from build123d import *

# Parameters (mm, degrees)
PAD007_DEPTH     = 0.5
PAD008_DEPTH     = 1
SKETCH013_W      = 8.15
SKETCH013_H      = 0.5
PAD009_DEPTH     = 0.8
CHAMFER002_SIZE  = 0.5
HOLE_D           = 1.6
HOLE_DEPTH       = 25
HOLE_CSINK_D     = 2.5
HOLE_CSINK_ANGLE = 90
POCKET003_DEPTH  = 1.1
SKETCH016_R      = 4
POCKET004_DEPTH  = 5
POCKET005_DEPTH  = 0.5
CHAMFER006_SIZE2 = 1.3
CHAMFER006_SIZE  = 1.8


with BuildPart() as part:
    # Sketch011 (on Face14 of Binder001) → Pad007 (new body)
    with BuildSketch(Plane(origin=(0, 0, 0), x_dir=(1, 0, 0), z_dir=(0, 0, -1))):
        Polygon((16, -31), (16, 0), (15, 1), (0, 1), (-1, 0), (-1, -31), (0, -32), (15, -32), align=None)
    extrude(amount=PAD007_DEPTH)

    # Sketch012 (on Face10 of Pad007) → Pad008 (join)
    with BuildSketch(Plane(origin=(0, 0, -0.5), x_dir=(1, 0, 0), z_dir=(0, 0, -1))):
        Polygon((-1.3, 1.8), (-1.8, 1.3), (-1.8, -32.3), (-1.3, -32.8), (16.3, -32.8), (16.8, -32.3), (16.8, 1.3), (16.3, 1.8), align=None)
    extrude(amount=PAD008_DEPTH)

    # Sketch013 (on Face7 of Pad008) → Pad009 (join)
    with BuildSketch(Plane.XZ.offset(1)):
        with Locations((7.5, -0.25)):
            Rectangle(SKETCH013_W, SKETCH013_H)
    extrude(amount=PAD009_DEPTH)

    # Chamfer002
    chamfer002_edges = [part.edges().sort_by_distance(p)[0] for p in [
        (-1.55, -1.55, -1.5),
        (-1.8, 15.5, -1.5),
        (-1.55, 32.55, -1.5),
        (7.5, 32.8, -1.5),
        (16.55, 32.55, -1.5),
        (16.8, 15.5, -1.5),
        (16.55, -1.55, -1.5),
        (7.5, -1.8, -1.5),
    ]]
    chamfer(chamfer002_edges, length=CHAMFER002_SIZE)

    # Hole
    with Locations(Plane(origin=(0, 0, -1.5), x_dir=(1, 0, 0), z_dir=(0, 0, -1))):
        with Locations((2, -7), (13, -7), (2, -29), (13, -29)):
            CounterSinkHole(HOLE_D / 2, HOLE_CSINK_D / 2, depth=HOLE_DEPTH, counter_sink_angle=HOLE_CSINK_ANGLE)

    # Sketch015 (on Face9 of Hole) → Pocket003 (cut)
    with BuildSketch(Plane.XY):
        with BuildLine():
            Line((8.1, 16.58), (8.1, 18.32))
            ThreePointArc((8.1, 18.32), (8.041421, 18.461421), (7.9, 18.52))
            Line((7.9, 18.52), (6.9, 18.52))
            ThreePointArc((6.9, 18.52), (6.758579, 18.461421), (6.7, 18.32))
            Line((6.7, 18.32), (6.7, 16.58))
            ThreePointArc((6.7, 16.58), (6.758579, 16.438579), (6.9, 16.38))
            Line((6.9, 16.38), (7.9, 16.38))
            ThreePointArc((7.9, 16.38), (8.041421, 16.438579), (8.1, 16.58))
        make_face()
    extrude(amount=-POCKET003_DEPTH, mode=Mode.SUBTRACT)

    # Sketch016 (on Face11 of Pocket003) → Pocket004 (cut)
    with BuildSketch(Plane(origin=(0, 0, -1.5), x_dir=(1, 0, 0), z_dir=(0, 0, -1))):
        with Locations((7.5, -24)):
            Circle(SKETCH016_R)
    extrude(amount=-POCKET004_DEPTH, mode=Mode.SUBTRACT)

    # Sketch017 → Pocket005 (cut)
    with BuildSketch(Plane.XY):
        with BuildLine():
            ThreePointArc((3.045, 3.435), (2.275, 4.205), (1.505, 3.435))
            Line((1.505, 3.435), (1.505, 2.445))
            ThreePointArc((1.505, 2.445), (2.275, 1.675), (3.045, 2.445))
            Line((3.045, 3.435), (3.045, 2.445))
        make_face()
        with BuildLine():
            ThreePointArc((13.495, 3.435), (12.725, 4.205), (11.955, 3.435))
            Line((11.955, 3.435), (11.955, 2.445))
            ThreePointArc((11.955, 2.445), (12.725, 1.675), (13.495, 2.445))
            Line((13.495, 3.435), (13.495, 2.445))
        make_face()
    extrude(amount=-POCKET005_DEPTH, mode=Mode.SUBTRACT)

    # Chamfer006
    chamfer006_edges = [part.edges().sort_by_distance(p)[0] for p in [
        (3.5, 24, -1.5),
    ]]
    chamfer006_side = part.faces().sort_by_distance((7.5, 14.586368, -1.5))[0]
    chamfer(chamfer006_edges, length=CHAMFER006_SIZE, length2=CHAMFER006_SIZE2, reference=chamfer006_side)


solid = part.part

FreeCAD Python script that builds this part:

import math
import FreeCAD as App
import Part
import Sketcher

V = App.Vector


def edges_at(feature, points):
    """Names of the edges that pass closest to the given points."""
    edges = feature.Shape.Edges
    near = lambda p: min(range(len(edges)), key=lambda i: edges[i].distToShape(Part.Vertex(*p))[0])
    return sorted({f"Edge{near(p) + 1}" for p in points})


def add_polygon(sketch, points):
    """Adds a closed chain of lines whose ends are joined by coincident constraints."""
    first, n = sketch.GeometryCount, len(points)
    for a, b in zip(points, points[1:] + points[:1]):
        sketch.addGeometry(Part.LineSegment(App.Vector(*a, 0), App.Vector(*b, 0)), False)
    for i in range(n):
        sketch.addConstraint(Sketcher.Constraint("Coincident", first + i, 2, first + (i + 1) % n, 1))

doc = App.newDocument("Part")
body = doc.addObject("PartDesign::Body", "Body")

# Sketch on XY plane
sketch1 = doc.addObject("Sketcher::SketchObject", "Sketch")
body.addObject(sketch1)
sketch1.AttachmentSupport = (doc.XY_Plane, [""])
sketch1.MapMode = "FlatFace"
add_polygon(sketch1, [(16, 31), (16, 0), (15, -1), (0, -1), (-1, 0), (-1, 31), (0, 32), (15, 32)])  # lines 0-7
sketch1.addConstraint([
    Sketcher.Constraint("Vertical", 0),
    Sketcher.Constraint("Horizontal", 2),
    Sketcher.Constraint("Vertical", 4),
    Sketcher.Constraint("Horizontal", 6),
    Sketcher.Constraint("PointOnObject", 0, 2, -1),
    Sketcher.Constraint("PointOnObject", 2, 2, -2),
    Sketcher.Constraint("PointOnObject", 3, 2, -1),
    Sketcher.Constraint("PointOnObject", 5, 2, -2),
    Sketcher.Constraint("Perpendicular", 1, 3),
    Sketcher.Constraint("Perpendicular", 3, 5),
    Sketcher.Constraint("Perpendicular", 5, 7),
    Sketcher.Constraint("Horizontal", 4, 2, 7, 2),
    Sketcher.Constraint("Vertical", 1, 2, 6, 2),
    Sketcher.Constraint("DistanceX", 2, 2, 2, 1, 15.0),
    Sketcher.Constraint("DistanceY", 0, 2, 0, 1, 31.0),
    Sketcher.Constraint("DistanceX", -1, 1, 0, 2, 16.0),
])
pad1 = doc.addObject("PartDesign::Pad", "Pad")
body.addObject(pad1)
pad1.Profile = sketch1
pad1.Length = 0.5
pad1.Reversed = True

# Sketch on XY plane
sketch2 = doc.addObject("Sketcher::SketchObject", "Sketch001")
body.addObject(sketch2)
sketch2.AttachmentSupport = (doc.XY_Plane, [""])
sketch2.MapMode = "FlatFace"
sketch2.AttachmentOffset = App.Placement(V(0, 0, -0.5), App.Rotation())
add_polygon(sketch2, [(-1.3, -1.8), (-1.8, -1.3), (-1.8, 32.3), (-1.3, 32.8), (16.3, 32.8), (16.8, 32.3), (16.8, -1.3), (16.3, -1.8)])  # lines 0-7
sketch2.addConstraint([
    Sketcher.Constraint("Vertical", 1),
    Sketcher.Constraint("Horizontal", 3),
    Sketcher.Constraint("Vertical", 5),
    Sketcher.Constraint("Horizontal", 7),
    Sketcher.Constraint("Perpendicular", 0, 2),
    Sketcher.Constraint("Perpendicular", 2, 4),
    Sketcher.Constraint("Perpendicular", 4, 6),
    Sketcher.Constraint("Horizontal", 1, 2, 4, 2),
    Sketcher.Constraint("Horizontal", 0, 2, 5, 2),
    Sketcher.Constraint("Vertical", 3, 2, 6, 2),
    Sketcher.Constraint("Vertical", 2, 2, 7, 2),
    Sketcher.Constraint("DistanceX", 3, 1, 3, 2, 17.6),
    Sketcher.Constraint("DistanceY", 1, 1, 1, 2, 33.6),
    Sketcher.Constraint("DistanceX", 0, 2, -1, 1, 1.8),
    Sketcher.Constraint("DistanceY", 0, 2, -1, 1, 1.3),
    Sketcher.Constraint("DistanceX", 2, 2, -1, 1, 1.3),
])
pad2 = doc.addObject("PartDesign::Pad", "Pad001")
body.addObject(pad2)
pad2.Profile = sketch2
pad2.Length = 1
pad2.Reversed = True

# Sketch on XZ plane
sketch3 = doc.addObject("Sketcher::SketchObject", "Sketch002")
body.addObject(sketch3)
sketch3.AttachmentSupport = (doc.XZ_Plane, [""])
sketch3.MapMode = "FlatFace"
sketch3.AttachmentOffset = App.Placement(V(0, 0, 1), App.Rotation())
add_polygon(sketch3, [(3.425, 0), (3.425, -0.5), (11.575, -0.5), (11.575, 0)])  # lines 0-3
sketch3.addConstraint([
    Sketcher.Constraint("Vertical", 0),
    Sketcher.Constraint("Horizontal", 1),
    Sketcher.Constraint("Vertical", 2),
    Sketcher.Constraint("Horizontal", 3),
    Sketcher.Constraint("PointOnObject", 2, 2, -1),
    Sketcher.Constraint("DistanceY", 0, 2, 0, 1, 0.5),
    Sketcher.Constraint("DistanceX", 1, 1, 1, 2, 8.15),
    Sketcher.Constraint("DistanceX", -1, 1, 0, 2, 3.425),
])
pad3 = doc.addObject("PartDesign::Pad", "Pad002")
body.addObject(pad3)
pad3.Profile = sketch3
pad3.Length = 0.8
doc.recompute()

chamfer = doc.addObject("PartDesign::Chamfer", "Chamfer")
body.addObject(chamfer)
chamfer.Base = (pad3, edges_at(pad3, [
    (-1.55, -1.55, -1.5),
    (-1.8, 15.5, -1.5),
    (-1.55, 32.55, -1.5),
    (7.5, 32.8, -1.5),
    (16.55, 32.55, -1.5),
    (16.8, 15.5, -1.5),
    (16.55, -1.55, -1.5),
    (7.5, -1.8, -1.5),
]))
chamfer.Size = 0.5

# Sketch on XY plane
sketch4 = doc.addObject("Sketcher::SketchObject", "Sketch003")
body.addObject(sketch4)
sketch4.AttachmentSupport = (doc.XY_Plane, [""])
sketch4.MapMode = "FlatFace"
sketch4.AttachmentOffset = App.Placement(V(0, 0, -1.5), App.Rotation())
sketch4.addGeometry([
    Part.Circle(V(2, 7, 0), V(0, 0, 1), 0.8),
    Part.Circle(V(13, 7, 0), V(0, 0, 1), 0.8),
    Part.Circle(V(2, 29, 0), V(0, 0, 1), 0.8),
    Part.Circle(V(13, 29, 0), V(0, 0, 1), 0.8),
], False)
sketch4.addConstraint([
    Sketcher.Constraint("Equal", 0, 1),
    Sketcher.Constraint("Equal", 1, 2),
    Sketcher.Constraint("Equal", 2, 3),
    Sketcher.Constraint("Horizontal", 0, 3, 1, 3),
    Sketcher.Constraint("Horizontal", 2, 3, 3, 3),
    Sketcher.Constraint("Vertical", 0, 3, 2, 3),
    Sketcher.Constraint("Vertical", 1, 3, 3, 3),
    Sketcher.Constraint("Diameter", 0, 1.6),
    Sketcher.Constraint("DistanceX", -1, 1, 0, 3, 2.0),
    Sketcher.Constraint("DistanceY", -1, 1, 0, 3, 7.0),
    Sketcher.Constraint("DistanceX", -1, 1, 1, 3, 13.0),
    Sketcher.Constraint("DistanceY", -1, 1, 2, 3, 29.0),
])
doc.recompute()
hole = doc.addObject("PartDesign::Hole", "Hole")
body.addObject(hole)
hole.Profile = sketch4
hole.ThreadType = "None"
hole.Diameter = 1.6
hole.DepthType = "Dimension"
hole.Depth = 25
hole.DrillPoint = "Flat"
hole.HoleCutType = "Countersink"
hole.HoleCutDiameter = 2.5
hole.HoleCutCountersinkAngle = 90
hole.Reversed = True

# Sketch on XY plane
sketch5 = doc.addObject("Sketcher::SketchObject", "Sketch004")
body.addObject(sketch5)
sketch5.AttachmentSupport = (doc.XY_Plane, [""])
sketch5.MapMode = "FlatFace"
sketch5.addGeometry([
    Part.LineSegment(V(8.1, 16.58, 0), V(8.1, 18.32, 0)),  # 0
    Part.ArcOfCircle(Part.Circle(V(7.899999, 18.319999, 0), V(0, 0, 1), 0.200001), math.radians(0.000348), math.radians(89.999652)),  # 1
    Part.LineSegment(V(7.9, 18.52, 0), V(6.9, 18.52, 0)),  # 2
    Part.ArcOfCircle(Part.Circle(V(6.900001, 18.319999, 0), V(0, 0, 1), 0.200001), math.radians(90.000348), math.radians(179.999652)),  # 3
    Part.LineSegment(V(6.7, 18.32, 0), V(6.7, 16.58, 0)),  # 4
    Part.ArcOfCircle(Part.Circle(V(6.900001, 16.580001, 0), V(0, 0, 1), 0.200001), math.radians(-179.999652), math.radians(-90.000348)),  # 5
    Part.LineSegment(V(6.9, 16.38, 0), V(7.9, 16.38, 0)),  # 6
    Part.ArcOfCircle(Part.Circle(V(7.899999, 16.580001, 0), V(0, 0, 1), 0.200001), math.radians(-89.999652), math.radians(-0.000348)),  # 7
], False)
sketch5.addConstraint([
    Sketcher.Constraint("Coincident", 0, 2, 1, 1),
    Sketcher.Constraint("Coincident", 1, 2, 2, 1),
    Sketcher.Constraint("Coincident", 2, 2, 3, 1),
    Sketcher.Constraint("Coincident", 3, 2, 4, 1),
    Sketcher.Constraint("Coincident", 4, 2, 5, 1),
    Sketcher.Constraint("Coincident", 5, 2, 6, 1),
    Sketcher.Constraint("Coincident", 6, 2, 7, 1),
    Sketcher.Constraint("Coincident", 7, 2, 0, 1),
    Sketcher.Constraint("Vertical", 0),
    Sketcher.Constraint("Horizontal", 2),
    Sketcher.Constraint("Vertical", 4),
    Sketcher.Constraint("Horizontal", 6),
    Sketcher.Constraint("Equal", 1, 3),
    Sketcher.Constraint("Equal", 3, 5),
    Sketcher.Constraint("Equal", 5, 7),
    Sketcher.Constraint("Horizontal", 3, 3, 0, 2),
    Sketcher.Constraint("Horizontal", 0, 2, 3, 2),
    Sketcher.Constraint("Horizontal", 7, 3, 4, 2),
    Sketcher.Constraint("Horizontal", 4, 2, 7, 2),
    Sketcher.Constraint("Vertical", 7, 3, 1, 2),
    Sketcher.Constraint("Vertical", 5, 3, 2, 2),
    Sketcher.Constraint("Vertical", 2, 2, 5, 2),
    Sketcher.Constraint("Vertical", 1, 2, 6, 2),
    Sketcher.Constraint("Radius", 1, 0.200001),
    Sketcher.Constraint("DistanceX", 2, 2, 2, 1, 1.0),
    Sketcher.Constraint("DistanceY", 0, 1, 0, 2, 1.74),
    Sketcher.Constraint("DistanceX", -1, 1, 1, 3, 7.899999),
    Sketcher.Constraint("DistanceY", -1, 1, 1, 3, 18.319999),
])
pocket1 = doc.addObject("PartDesign::Pocket", "Pocket")
body.addObject(pocket1)
pocket1.Profile = sketch5
pocket1.Length = 1.1

# Sketch on XY plane
sketch6 = doc.addObject("Sketcher::SketchObject", "Sketch005")
body.addObject(sketch6)
sketch6.AttachmentSupport = (doc.XY_Plane, [""])
sketch6.MapMode = "FlatFace"
sketch6.AttachmentOffset = App.Placement(V(0, 0, -1.5), App.Rotation())
sketch6.addGeometry(Part.Circle(V(7.5, 24, 0), V(0, 0, 1), 4), False)
sketch6.addConstraint([
    Sketcher.Constraint("Diameter", 0, 8.0),
    Sketcher.Constraint("DistanceY", -1, 1, 0, 3, 24.0),
    Sketcher.Constraint("DistanceX", -1, 1, 0, 3, 7.5),
])
pocket2 = doc.addObject("PartDesign::Pocket", "Pocket001")
body.addObject(pocket2)
pocket2.Profile = sketch6
pocket2.Length = 5
pocket2.Reversed = True

# Sketch on XY plane
sketch7 = doc.addObject("Sketcher::SketchObject", "Sketch006")
body.addObject(sketch7)
sketch7.AttachmentSupport = (doc.XY_Plane, [""])
sketch7.MapMode = "FlatFace"
sketch7.addGeometry([
    Part.ArcOfCircle(Part.Circle(V(2.275, 3.435, 0), V(0, 0, 1), 0.77), math.radians(0), math.radians(180)),  # 0
    Part.LineSegment(V(1.505, 3.435, 0), V(1.505, 2.445, 0)),  # 1
    Part.ArcOfCircle(Part.Circle(V(2.275, 2.445, 0), V(0, 0, 1), 0.77), math.radians(180), math.radians(360)),  # 2
    Part.LineSegment(V(3.045, 2.445, 0), V(3.045, 3.435, 0)),  # 3
    Part.ArcOfCircle(Part.Circle(V(12.725, 3.435, 0), V(0, 0, 1), 0.77), math.radians(0), math.radians(180)),  # 4
    Part.LineSegment(V(11.955, 3.435, 0), V(11.955, 2.445, 0)),  # 5
    Part.ArcOfCircle(Part.Circle(V(12.725, 2.445, 0), V(0, 0, 1), 0.77), math.radians(180), math.radians(360)),  # 6
    Part.LineSegment(V(13.495, 2.445, 0), V(13.495, 3.435, 0)),  # 7
], False)
sketch7.addConstraint([
    Sketcher.Constraint("Tangent", 0, 2, 1, 1),
    Sketcher.Constraint("Tangent", 1, 2, 2, 1),
    Sketcher.Constraint("Tangent", 2, 2, 3, 1),
    Sketcher.Constraint("Tangent", 3, 2, 0, 1),
    Sketcher.Constraint("Tangent", 4, 2, 5, 1),
    Sketcher.Constraint("Tangent", 5, 2, 6, 1),
    Sketcher.Constraint("Tangent", 6, 2, 7, 1),
    Sketcher.Constraint("Tangent", 7, 2, 4, 1),
    Sketcher.Constraint("Vertical", 1),
    Sketcher.Constraint("Vertical", 3),
    Sketcher.Constraint("Vertical", 5),
    Sketcher.Constraint("Vertical", 7),
    Sketcher.Constraint("Equal", 2, 4),
    Sketcher.Constraint("Horizontal", 0, 3, 4, 3),
    Sketcher.Constraint("Horizontal", 2, 3, 6, 3),
    Sketcher.Constraint("Radius", 0, 0.77),
    Sketcher.Constraint("DistanceY", 1, 2, 1, 1, 0.99),
    Sketcher.Constraint("DistanceX", 0, 3, 4, 3, 10.45),
    Sketcher.Constraint("DistanceX", -1, 1, 0, 3, 2.275),
    Sketcher.Constraint("DistanceY", -1, 1, 0, 3, 3.435),
])
pocket3 = doc.addObject("PartDesign::Pocket", "Pocket002")
body.addObject(pocket3)
pocket3.Profile = sketch7
pocket3.Length = 0.5
doc.recompute()

chamfer2 = doc.addObject("PartDesign::Chamfer", "Chamfer001")
body.addObject(chamfer2)
chamfer2.Base = (pocket3, edges_at(pocket3, [(3.5, 24, -1.5)]))
chamfer2.ChamferType = "Two distances"
chamfer2.Size = 1.8
chamfer2.Size2 = 1.3

doc.recompute()
